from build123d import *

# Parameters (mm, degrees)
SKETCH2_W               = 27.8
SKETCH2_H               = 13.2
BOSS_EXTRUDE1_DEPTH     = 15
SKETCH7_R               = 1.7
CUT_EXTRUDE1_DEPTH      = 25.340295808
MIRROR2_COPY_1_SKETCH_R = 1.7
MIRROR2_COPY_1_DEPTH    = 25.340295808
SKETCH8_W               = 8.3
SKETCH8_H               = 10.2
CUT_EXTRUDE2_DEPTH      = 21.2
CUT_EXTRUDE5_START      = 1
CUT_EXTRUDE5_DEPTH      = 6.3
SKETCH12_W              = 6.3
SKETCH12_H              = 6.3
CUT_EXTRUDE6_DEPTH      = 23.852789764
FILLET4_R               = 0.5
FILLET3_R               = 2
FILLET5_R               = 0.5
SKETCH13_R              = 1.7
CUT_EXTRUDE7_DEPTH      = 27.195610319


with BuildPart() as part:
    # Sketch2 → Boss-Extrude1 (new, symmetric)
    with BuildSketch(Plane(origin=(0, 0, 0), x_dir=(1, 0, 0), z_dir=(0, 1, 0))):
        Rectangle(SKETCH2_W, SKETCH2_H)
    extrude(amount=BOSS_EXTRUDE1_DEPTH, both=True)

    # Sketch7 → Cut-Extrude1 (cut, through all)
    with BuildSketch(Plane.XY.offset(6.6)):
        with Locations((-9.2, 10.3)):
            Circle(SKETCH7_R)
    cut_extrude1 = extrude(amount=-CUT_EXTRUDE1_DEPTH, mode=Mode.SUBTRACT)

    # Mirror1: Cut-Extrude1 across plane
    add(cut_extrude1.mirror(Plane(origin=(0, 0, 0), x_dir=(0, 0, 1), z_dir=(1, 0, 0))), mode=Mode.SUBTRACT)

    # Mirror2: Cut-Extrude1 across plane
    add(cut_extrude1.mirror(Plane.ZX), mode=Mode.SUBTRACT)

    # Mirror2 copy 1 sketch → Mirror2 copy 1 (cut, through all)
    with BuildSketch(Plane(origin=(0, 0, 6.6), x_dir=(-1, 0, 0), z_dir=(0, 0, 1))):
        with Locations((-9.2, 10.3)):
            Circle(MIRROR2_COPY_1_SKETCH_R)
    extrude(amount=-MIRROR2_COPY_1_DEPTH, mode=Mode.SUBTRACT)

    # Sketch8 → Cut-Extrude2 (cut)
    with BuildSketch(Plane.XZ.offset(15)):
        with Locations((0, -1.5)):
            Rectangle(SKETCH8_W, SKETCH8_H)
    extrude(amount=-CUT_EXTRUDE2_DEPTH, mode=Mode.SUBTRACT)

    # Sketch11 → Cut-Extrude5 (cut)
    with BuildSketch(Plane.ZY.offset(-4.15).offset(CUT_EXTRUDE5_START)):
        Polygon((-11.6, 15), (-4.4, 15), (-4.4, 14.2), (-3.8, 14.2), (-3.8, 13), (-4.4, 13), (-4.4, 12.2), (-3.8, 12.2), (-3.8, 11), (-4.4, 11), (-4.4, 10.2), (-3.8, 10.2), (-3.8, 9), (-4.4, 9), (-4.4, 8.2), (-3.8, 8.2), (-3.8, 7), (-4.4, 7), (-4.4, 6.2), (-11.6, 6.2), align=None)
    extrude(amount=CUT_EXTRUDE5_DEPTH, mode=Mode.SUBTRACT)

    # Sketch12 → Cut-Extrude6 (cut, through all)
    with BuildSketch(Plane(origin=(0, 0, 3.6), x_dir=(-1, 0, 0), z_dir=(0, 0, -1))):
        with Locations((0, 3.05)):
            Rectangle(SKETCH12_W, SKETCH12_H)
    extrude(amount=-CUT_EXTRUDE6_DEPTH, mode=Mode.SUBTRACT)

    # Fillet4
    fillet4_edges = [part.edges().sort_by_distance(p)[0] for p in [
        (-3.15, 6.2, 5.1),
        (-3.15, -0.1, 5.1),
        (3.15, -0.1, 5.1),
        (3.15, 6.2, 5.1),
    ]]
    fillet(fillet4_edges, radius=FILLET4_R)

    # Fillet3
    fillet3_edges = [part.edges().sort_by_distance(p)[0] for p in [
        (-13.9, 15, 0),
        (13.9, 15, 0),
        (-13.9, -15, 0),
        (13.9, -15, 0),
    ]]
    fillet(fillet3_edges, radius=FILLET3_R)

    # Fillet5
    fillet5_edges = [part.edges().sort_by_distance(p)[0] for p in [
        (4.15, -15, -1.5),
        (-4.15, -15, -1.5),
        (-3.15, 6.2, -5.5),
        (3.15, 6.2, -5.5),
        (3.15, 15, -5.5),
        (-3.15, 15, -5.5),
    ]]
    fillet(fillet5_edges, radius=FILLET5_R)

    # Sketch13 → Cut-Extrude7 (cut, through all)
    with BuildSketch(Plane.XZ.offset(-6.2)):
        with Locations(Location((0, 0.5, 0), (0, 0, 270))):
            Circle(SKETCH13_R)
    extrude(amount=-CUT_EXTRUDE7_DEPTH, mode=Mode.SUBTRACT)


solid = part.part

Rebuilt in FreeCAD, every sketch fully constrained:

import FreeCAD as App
import Part
import Sketcher


def edges_at(feature, points):
    """Names of the edges that pass closest to the given points."""
    edges = feature.Shape.Edges
    near = lambda p: min(range(len(edges)), key=lambda i: edges[i].distToShape(Part.Vertex(*p))[0])
    return sorted({f"Edge{near(p) + 1}" for p in points})

doc = App.newDocument("Part")
body = doc.addObject("PartDesign::Body", "Body")

sketch1 = body.newObject("Sketcher::SketchObject", "Sketch")
sketch1.AttachmentSupport = (doc.getObject("XZ_Plane"), [""])
sketch1.MapMode = "FlatFace"
sketch1.addGeometry([
    Part.LineSegment(App.Vector(-14, -7, 0), App.Vector(-14, 7, 0)),
    Part.LineSegment(App.Vector(-14, 7, 0), App.Vector(14, 7, 0)),
    Part.LineSegment(App.Vector(14, 7, 0), App.Vector(14, -7, 0)),
    Part.LineSegment(App.Vector(14, -7, 0), App.Vector(-14, -7, 0)),
], False)
sketch1.addConstraint([
    Sketcher.Constraint("Coincident", 0, 2, 1, 1),
    Sketcher.Constraint("Coincident", 1, 2, 2, 1),
    Sketcher.Constraint("Coincident", 2, 2, 3, 1),
    Sketcher.Constraint("Coincident", 3, 2, 0, 1),
    Sketcher.Constraint("Vertical", 0),
    Sketcher.Constraint("Horizontal", 1),
    Sketcher.Constraint("Vertical", 2),
    Sketcher.Constraint("Horizontal", 3),
    Sketcher.Constraint("Symmetric", 0, 2, 2, 2, -1, 1),
    Sketcher.Constraint("DistanceX", 1, 1, 1, 2, 27.8),
    Sketcher.Constraint("DistanceY", 0, 1, 0, 2, 13.2),
])
pad1 = body.newObject("PartDesign::Pad", "Pad")
pad1.Profile = sketch1
pad1.Length = 30
pad1.Midplane = True

sketch2 = body.newObject("Sketcher::SketchObject", "Sketch001")
sketch2.AttachmentSupport = (doc.getObject("XY_Plane"), [""])
sketch2.MapMode = "FlatFace"
sketch2.AttachmentOffset = App.Placement(App.Vector(0, 0, 6.6), App.Rotation())
sketch2.addGeometry(Part.Circle(App.Vector(-9.2, 10.3, 0), App.Vector(0, 0, 1), 1.7), False)
sketch2.addConstraint([
    Sketcher.Constraint("Diameter", 0, 3.4),
    Sketcher.Constraint("DistanceX", 0, 3, -1, 1, 9.2),
    Sketcher.Constraint("DistanceY", -1, 1, 0, 3, 10.3),
])
pocket1 = body.newObject("PartDesign::Pocket", "Pocket")
pocket1.Profile = sketch2
pocket1.Type = "ThroughAll"
doc.recompute()

mirrored = body.newObject("PartDesign::Mirrored", "Mirrored")
mirrored.Originals = [pocket1]
mirrored.MirrorPlane = (doc.getObject("YZ_Plane"), [""])
body.Tip = mirrored
doc.recompute()

mirrored2 = body.newObject("PartDesign::Mirrored", "Mirrored001")
mirrored2.Originals = [pocket1]
mirrored2.MirrorPlane = (doc.getObject("XZ_Plane"), [""])
body.Tip = mirrored2

sketch3 = body.newObject("Sketcher::SketchObject", "Sketch002")
sketch3.AttachmentSupport = (doc.getObject("XY_Plane"), [""])
sketch3.MapMode = "FlatFace"
sketch3.AttachmentOffset = App.Placement(App.Vector(0, 0, 6.6), App.Rotation())
sketch3.addGeometry(Part.Circle(App.Vector(9.2, -10.3, 0), App.Vector(0, 0, 1), 1.7), False)
sketch3.addConstraint([
    Sketcher.Constraint("Diameter", 0, 3.4),
    Sketcher.Constraint("DistanceX", -1, 1, 0, 3, 9.2),
    Sketcher.Constraint("DistanceY", 0, 3, -1, 1, 10.3),
])
pocket2 = body.newObject("PartDesign::Pocket", "Pocket001")
pocket2.Profile = sketch3
pocket2.Type = "ThroughAll"

sketch4 = body.newObject("Sketcher::SketchObject", "Sketch003")
sketch4.AttachmentSupport = (doc.getObject("XZ_Plane"), [""])
sketch4.MapMode = "FlatFace"
sketch4.AttachmentOffset = App.Placement(App.Vector(0, 0, 15), App.Rotation())
sketch4.addGeometry([
    Part.LineSegment(App.Vector(-4, 4, 0), App.Vector(-4, -7, 0)),
    Part.LineSegment(App.Vector(-4, -7, 0), App.Vector(4, -7, 0)),
    Part.LineSegment(App.Vector(4, -7, 0), App.Vector(4, 4, 0)),
    Part.LineSegment(App.Vector(4, 4, 0), App.Vector(-4, 4, 0)),
], False)
sketch4.addConstraint([
    Sketcher.Constraint("Coincident", 0, 2, 1, 1),
    Sketcher.Constraint("Coincident", 1, 2, 2, 1),
    Sketcher.Constraint("Coincident", 2, 2, 3, 1),
    Sketcher.Constraint("Coincident", 3, 2, 0, 1),
    Sketcher.Constraint("Vertical", 0),
    Sketcher.Constraint("Horizontal", 1),
    Sketcher.Constraint("Vertical", 2),
    Sketcher.Constraint("Horizontal", 3),
    Sketcher.Constraint("DistanceX", 1, 1, 1, 2, 8.3),
    Sketcher.Constraint("DistanceY", 0, 2, 0, 1, 10.2),
    Sketcher.Constraint("DistanceY", 0, 2, -1, 1, 6.6),
    Sketcher.Constraint("DistanceX", 0, 2, -1, 1, 4.15),
])
pocket3 = body.newObject("PartDesign::Pocket", "Pocket002")
pocket3.Profile = sketch4
pocket3.Length = 21.2

sketch5 = body.newObject("Sketcher::SketchObject", "Sketch004")
sketch5.AttachmentSupport = (doc.getObject("YZ_Plane"), [""])
sketch5.MapMode = "FlatFace"
sketch5.AttachmentOffset = App.Placement(App.Vector(0, 0, 3.15), App.Rotation())
sketch5.addGeometry([
    Part.LineSegment(App.Vector(15, -4.4, 0), App.Vector(15, -11.6, 0)),
    Part.LineSegment(App.Vector(15, -11.6, 0), App.Vector(6.2, -11.6, 0)),
    Part.LineSegment(App.Vector(6.2, -11.6, 0), App.Vector(6.2, -4.4, 0)),
    Part.LineSegment(App.Vector(6.2, -4.4, 0), App.Vector(7, -4.4, 0)),
    Part.LineSegment(App.Vector(7, -4.4, 0), App.Vector(7, -3.8, 0)),
    Part.LineSegment(App.Vector(7, -3.8, 0), App.Vector(8.2, -3.8, 0)),
    Part.LineSegment(App.Vector(8.2, -3.8, 0), App.Vector(8.2, -4.4, 0)),
    Part.LineSegment(App.Vector(8.2, -4.4, 0), App.Vector(9, -4.4, 0)),
    Part.LineSegment(App.Vector(9, -4.4, 0), App.Vector(9, -3.8, 0)),
    Part.LineSegment(App.Vector(9, -3.8, 0), App.Vector(10.2, -3.8, 0)),
    Part.LineSegment(App.Vector(10.2, -3.8, 0), App.Vector(10.2, -4.4, 0)),
    Part.LineSegment(App.Vector(10.2, -4.4, 0), App.Vector(11, -4.4, 0)),
    Part.LineSegment(App.Vector(11, -4.4, 0), App.Vector(11, -3.8, 0)),
    Part.LineSegment(App.Vector(11, -3.8, 0), App.Vector(12.2, -3.8, 0)),
    Part.LineSegment(App.Vector(12.2, -3.8, 0), App.Vector(12.2, -4.4, 0)),
    Part.LineSegment(App.Vector(12.2, -4.4, 0), App.Vector(13, -4.4, 0)),
    Part.LineSegment(App.Vector(13, -4.4, 0), App.Vector(13, -3.8, 0)),
    Part.LineSegment(App.Vector(13, -3.8, 0), App.Vector(14.2, -3.8, 0)),
    Part.LineSegment(App.Vector(14.2, -3.8, 0), App.Vector(14.2, -4.4, 0)),
    Part.LineSegment(App.Vector(14.2, -4.4, 0), App.Vector(15, -4.4, 0)),
], False)
sketch5.addConstraint([
    Sketcher.Constraint("Coincident", 0, 2, 1, 1),
    Sketcher.Constraint("Coincident", 1, 2, 2, 1),
    Sketcher.Constraint("Coincident", 2, 2, 3, 1),
    Sketcher.Constraint("Coincident", 3, 2, 4, 1),
    Sketcher.Constraint("Coincident", 4, 2, 5, 1),
    Sketcher.Constraint("Coincident", 5, 2, 6, 1),
    Sketcher.Constraint("Coincident", 6, 2, 7, 1),
    Sketcher.Constraint("Coincident", 7, 2, 8, 1),
    Sketcher.Constraint("Coincident", 8, 2, 9, 1),
    Sketcher.Constraint("Coincident", 9, 2, 10, 1),
    Sketcher.Constraint("Coincident", 10, 2, 11, 1),
    Sketcher.Constraint("Coincident", 11, 2, 12, 1),
    Sketcher.Constraint("Coincident", 12, 2, 13, 1),
    Sketcher.Constraint("Coincident", 13, 2, 14, 1),
    Sketcher.Constraint("Coincident", 14, 2, 15, 1),
    Sketcher.Constraint("Coincident", 15, 2, 16, 1),
    Sketcher.Constraint("Coincident", 16, 2, 17, 1),
    Sketcher.Constraint("Coincident", 17, 2, 18, 1),
    Sketcher.Constraint("Coincident", 18, 2, 19, 1),
    Sketcher.Constraint("Coincident", 19, 2, 0, 1),
    Sketcher.Constraint("Vertical", 0),
    Sketcher.Constraint("Horizontal", 1),
    Sketcher.Constraint("Vertical", 2),
    Sketcher.Constraint("Horizontal", 3),
    Sketcher.Constraint("Vertical", 4),
    Sketcher.Constraint("Horizontal", 5),
    Sketcher.Constraint("Vertical", 6),
    Sketcher.Constraint("Horizontal", 7),
    Sketcher.Constraint("Vertical", 8),
    Sketcher.Constraint("Horizontal", 9),
    Sketcher.Constraint("Vertical", 10),
    Sketcher.Constraint("Horizontal", 11),
    Sketcher.Constraint("Vertical", 12),
    Sketcher.Constraint("Horizontal", 13),
    Sketcher.Constraint("Vertical", 14),
    Sketcher.Constraint("Horizontal", 15),
    Sketcher.Constraint("Vertical", 16),
    Sketcher.Constraint("Horizontal", 17),
    Sketcher.Constraint("Vertical", 18),
    Sketcher.Constraint("Horizontal", 19),
    Sketcher.Constraint("Horizontal", 3, 2, 6, 2),
    Sketcher.Constraint("Horizontal", 5, 2, 8, 2),
    Sketcher.Constraint("Horizontal", 7, 2, 10, 2),
    Sketcher.Constraint("Horizontal", 9, 2, 12, 2),
    Sketcher.Constraint("Horizontal", 11, 2, 14, 2),
    Sketcher.Constraint("Horizontal", 13, 2, 16, 2),
    Sketcher.Constraint("Horizontal", 15, 2, 18, 2),
    Sketcher.Constraint("Equal", 3, 7),
    Sketcher.Constraint("Equal", 5, 9),
    Sketcher.Constraint("Equal", 7, 11),
    Sketcher.Constraint("Equal", 9, 13),
    Sketcher.Constraint("Equal", 11, 15),
    Sketcher.Constraint("Equal", 13, 17),
    Sketcher.Constraint("Equal", 15, 19),
    Sketcher.Constraint("DistanceX", 1, 2, 1, 1, 8.8),
    Sketcher.Constraint("DistanceX", 3, 1, 3, 2, 0.8),
    Sketcher.Constraint("DistanceY", 0, 2, 0, 1, 7.2),
    Sketcher.Constraint("DistanceY", 4, 1, 4, 2, 0.6),
    Sketcher.Constraint("DistanceX", -1, 1, 0, 2, 15.0),
    Sketcher.Constraint("DistanceY", 0, 2, -1, 1, 11.6),
])
pocket4 = body.newObject("PartDesign::Pocket", "Pocket003")
pocket4.Profile = sketch5
pocket4.Length = 6.3

sketch6 = body.newObject("Sketcher::SketchObject", "Sketch005")
sketch6.AttachmentSupport = (doc.getObject("XY_Plane"), [""])
sketch6.MapMode = "FlatFace"
sketch6.AttachmentOffset = App.Placement(App.Vector(0, 0, 3.6), App.Rotation())
sketch6.addGeometry([
    Part.LineSegment(App.Vector(3, 6, 0), App.Vector(3, 0, 0)),
    Part.LineSegment(App.Vector(3, 0, 0), App.Vector(-3, 0, 0)),
    Part.LineSegment(App.Vector(-3, 0, 0), App.Vector(-3, 6, 0)),
    Part.LineSegment(App.Vector(-3, 6, 0), App.Vector(3, 6, 0)),
], False)
sketch6.addConstraint([
    Sketcher.Constraint("Coincident", 0, 2, 1, 1),
    Sketcher.Constraint("Coincident", 1, 2, 2, 1),
    Sketcher.Constraint("Coincident", 2, 2, 3, 1),
    Sketcher.Constraint("Coincident", 3, 2, 0, 1),
    Sketcher.Constraint("Vertical", 0),
    Sketcher.Constraint("Horizontal", 1),
    Sketcher.Constraint("Vertical", 2),
    Sketcher.Constraint("Horizontal", 3),
    Sketcher.Constraint("Equal", 3, 0),
    Sketcher.Constraint("DistanceX", 1, 2, 1, 1, 6.3),
    Sketcher.Constraint("DistanceY", 0, 2, -1, 1, 0.1),
    Sketcher.Constraint("DistanceX", -1, 1, 0, 2, 3.15),
])
pocket5 = body.newObject("PartDesign::Pocket", "Pocket004")
pocket5.Profile = sketch6
pocket5.Type = "ThroughAll"
pocket5.Reversed = True
doc.recompute()

fillet = body.newObject("PartDesign::Fillet", "Fillet")
fillet.Base = (pocket5, edges_at(pocket5, [
    (-3.15, 6.2, 5.1),
    (-3.15, -0.1, 5.1),
    (3.15, -0.1, 5.1),
    (3.15, 6.2, 5.1),
]))
fillet.Radius = 0.5
doc.recompute()

fillet2 = body.newObject("PartDesign::Fillet", "Fillet001")
fillet2.Base = (fillet, edges_at(fillet, [
    (-13.9, 15, 0),
    (13.9, 15, 0),
    (-13.9, -15, 0),
    (13.9, -15, 0),
]))
fillet2.Radius = 2
doc.recompute()

fillet3 = body.newObject("PartDesign::Fillet", "Fillet002")
fillet3.Base = (fillet2, edges_at(fillet2, [
    (4.15, -15, -1.5),
    (-4.15, -15, -1.5),
    (-3.15, 6.2, -5.5),
    (3.15, 6.2, -5.5),
    (3.15, 15, -5.5),
    (-3.15, 15, -5.5),
]))
fillet3.Radius = 0.5

sketch7 = body.newObject("Sketcher::SketchObject", "Sketch006")
sketch7.AttachmentSupport = (doc.getObject("XZ_Plane"), [""])
sketch7.MapMode = "FlatFace"
sketch7.AttachmentOffset = App.Placement(App.Vector(0, 0, -6.2), App.Rotation())
sketch7.addGeometry(Part.Circle(App.Vector(0, 0.5, 0), App.Vector(0, 0, 1), 1.7), False)
sketch7.addConstraint([
    Sketcher.Constraint("PointOnObject", 0, 3, -2),
    Sketcher.Constraint("Diameter", 0, 3.4),
    Sketcher.Constraint("DistanceY", -1, 1, 0, 3, 0.5),
])
pocket6 = body.newObject("PartDesign::Pocket", "Pocket005")
pocket6.Profile = sketch7
pocket6.Type = "ThroughAll"

doc.recompute()
